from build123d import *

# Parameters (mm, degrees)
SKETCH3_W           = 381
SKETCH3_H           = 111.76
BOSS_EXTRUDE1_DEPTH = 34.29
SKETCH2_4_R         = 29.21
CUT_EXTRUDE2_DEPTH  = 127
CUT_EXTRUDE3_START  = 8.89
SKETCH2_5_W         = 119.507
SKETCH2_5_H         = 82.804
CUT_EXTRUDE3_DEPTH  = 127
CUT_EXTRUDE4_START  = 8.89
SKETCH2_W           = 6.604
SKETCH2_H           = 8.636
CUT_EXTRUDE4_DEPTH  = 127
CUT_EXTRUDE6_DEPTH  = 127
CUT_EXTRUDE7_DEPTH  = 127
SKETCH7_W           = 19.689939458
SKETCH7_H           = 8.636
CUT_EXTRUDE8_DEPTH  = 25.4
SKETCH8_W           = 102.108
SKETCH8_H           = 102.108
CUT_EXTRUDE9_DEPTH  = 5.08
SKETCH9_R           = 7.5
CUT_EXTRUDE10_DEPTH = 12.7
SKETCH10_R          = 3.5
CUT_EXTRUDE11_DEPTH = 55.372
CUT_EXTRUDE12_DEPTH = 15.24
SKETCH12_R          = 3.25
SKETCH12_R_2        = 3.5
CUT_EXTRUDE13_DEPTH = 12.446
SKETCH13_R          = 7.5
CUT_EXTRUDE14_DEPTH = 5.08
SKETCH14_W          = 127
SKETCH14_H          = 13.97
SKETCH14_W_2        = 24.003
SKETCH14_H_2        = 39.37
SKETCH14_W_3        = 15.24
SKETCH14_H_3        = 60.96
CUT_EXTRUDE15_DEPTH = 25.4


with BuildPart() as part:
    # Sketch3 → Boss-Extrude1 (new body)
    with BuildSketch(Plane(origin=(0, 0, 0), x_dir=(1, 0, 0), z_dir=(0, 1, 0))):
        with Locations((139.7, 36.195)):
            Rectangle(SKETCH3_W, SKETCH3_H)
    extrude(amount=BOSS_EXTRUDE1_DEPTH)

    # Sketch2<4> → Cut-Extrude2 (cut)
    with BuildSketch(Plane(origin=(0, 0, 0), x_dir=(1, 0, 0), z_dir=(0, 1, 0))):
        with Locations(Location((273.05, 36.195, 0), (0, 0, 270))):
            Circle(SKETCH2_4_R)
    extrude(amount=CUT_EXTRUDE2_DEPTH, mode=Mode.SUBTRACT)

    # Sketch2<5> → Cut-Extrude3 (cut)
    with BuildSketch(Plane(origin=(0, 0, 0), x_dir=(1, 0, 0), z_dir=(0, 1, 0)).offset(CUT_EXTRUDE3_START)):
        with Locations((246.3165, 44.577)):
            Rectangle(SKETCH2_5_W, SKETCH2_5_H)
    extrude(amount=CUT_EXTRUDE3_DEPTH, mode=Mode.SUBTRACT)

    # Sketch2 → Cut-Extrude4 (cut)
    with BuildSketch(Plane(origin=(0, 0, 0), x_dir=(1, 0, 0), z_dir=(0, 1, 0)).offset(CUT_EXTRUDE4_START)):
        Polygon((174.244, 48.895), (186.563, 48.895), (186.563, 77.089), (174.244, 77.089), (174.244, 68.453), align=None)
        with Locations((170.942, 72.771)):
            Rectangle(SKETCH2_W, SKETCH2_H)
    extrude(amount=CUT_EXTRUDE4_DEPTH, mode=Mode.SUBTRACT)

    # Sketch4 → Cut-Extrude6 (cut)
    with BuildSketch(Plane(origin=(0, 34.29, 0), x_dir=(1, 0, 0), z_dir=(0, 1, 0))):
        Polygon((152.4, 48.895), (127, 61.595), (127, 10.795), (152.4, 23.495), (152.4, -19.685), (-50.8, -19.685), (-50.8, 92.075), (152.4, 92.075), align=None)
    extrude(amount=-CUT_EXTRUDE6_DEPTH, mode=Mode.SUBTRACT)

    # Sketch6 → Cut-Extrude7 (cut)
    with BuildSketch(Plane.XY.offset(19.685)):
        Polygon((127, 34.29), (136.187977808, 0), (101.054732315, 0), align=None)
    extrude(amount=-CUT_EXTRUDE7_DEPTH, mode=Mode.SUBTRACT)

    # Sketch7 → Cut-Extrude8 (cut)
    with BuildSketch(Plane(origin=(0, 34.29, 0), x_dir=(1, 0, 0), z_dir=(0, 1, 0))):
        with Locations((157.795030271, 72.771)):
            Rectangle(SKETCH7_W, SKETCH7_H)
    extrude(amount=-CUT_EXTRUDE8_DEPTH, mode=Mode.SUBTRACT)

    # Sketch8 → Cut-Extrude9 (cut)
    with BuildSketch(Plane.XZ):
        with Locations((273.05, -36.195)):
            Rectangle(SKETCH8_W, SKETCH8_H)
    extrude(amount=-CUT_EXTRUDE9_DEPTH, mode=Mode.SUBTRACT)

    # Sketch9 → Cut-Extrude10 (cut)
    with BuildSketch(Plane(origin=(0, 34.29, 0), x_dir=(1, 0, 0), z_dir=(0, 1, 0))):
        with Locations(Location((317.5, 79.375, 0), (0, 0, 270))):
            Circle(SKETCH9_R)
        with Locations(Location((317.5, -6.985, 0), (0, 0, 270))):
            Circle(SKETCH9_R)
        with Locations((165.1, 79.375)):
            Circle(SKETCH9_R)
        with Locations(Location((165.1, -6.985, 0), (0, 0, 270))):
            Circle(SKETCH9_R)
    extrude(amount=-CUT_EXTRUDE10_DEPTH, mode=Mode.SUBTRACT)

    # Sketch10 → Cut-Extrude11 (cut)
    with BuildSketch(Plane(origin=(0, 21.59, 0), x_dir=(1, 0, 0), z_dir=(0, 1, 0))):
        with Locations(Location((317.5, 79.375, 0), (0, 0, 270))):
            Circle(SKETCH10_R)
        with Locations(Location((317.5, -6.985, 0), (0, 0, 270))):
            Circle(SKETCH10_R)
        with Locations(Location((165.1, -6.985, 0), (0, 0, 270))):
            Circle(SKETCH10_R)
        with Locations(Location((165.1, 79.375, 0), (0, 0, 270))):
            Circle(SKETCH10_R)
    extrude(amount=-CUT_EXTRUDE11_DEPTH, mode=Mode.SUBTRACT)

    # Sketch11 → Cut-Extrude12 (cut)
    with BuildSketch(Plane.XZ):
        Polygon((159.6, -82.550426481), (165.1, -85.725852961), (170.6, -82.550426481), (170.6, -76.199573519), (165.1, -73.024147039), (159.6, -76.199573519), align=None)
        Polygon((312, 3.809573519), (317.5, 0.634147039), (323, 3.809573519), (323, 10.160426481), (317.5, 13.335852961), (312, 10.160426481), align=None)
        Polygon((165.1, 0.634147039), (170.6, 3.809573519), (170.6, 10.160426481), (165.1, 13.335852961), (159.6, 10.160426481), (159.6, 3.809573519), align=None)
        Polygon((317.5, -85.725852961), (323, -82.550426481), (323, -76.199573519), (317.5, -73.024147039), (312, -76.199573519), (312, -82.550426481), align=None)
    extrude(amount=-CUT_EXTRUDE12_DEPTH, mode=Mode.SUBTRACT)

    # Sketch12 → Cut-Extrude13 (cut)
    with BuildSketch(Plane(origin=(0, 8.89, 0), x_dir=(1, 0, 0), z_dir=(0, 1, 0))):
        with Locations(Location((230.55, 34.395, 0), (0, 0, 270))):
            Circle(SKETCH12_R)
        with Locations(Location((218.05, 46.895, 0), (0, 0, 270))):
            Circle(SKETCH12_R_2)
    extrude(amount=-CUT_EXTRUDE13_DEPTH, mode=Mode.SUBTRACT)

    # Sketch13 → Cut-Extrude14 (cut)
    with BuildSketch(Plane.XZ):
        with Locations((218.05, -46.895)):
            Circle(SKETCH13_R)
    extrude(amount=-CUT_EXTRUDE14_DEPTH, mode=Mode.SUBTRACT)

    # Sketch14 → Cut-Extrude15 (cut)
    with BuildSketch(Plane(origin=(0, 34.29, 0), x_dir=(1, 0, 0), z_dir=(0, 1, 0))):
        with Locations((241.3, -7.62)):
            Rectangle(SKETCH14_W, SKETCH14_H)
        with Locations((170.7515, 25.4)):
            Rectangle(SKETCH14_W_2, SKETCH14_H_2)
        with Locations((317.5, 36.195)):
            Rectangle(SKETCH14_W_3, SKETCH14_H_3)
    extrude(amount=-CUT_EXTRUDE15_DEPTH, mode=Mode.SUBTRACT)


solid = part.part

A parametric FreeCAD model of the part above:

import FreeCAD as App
import Part
import Sketcher
from FreeCAD import Vector
Q = App.Units.Quantity

doc = App.newDocument("Part")
body = doc.addObject("PartDesign::Body", "Body")

# Sketch on XZ plane
sketch1 = body.newObject("Sketcher::SketchObject", "Sketch")
sketch1.AttachmentSupport = (doc.getObject("XZ_Plane"), [""])
sketch1.MapMode = "FlatFace"
sketch1.addGeometry([
    Part.LineSegment(Vector(-51, -92, 0), Vector(-51, 20, 0)),
    Part.LineSegment(Vector(-51, 20, 0), Vector(330, 20, 0)),
    Part.LineSegment(Vector(330, 20, 0), Vector(330, -92, 0)),
    Part.LineSegment(Vector(330, -92, 0), Vector(-51, -92, 0)),
], False)
sketch1.addConstraint([
    Sketcher.Constraint("Coincident", 0, 2, 1, 1),
    Sketcher.Constraint("Coincident", 1, 2, 2, 1),
    Sketcher.Constraint("Coincident", 2, 2, 3, 1),
    Sketcher.Constraint("Coincident", 3, 2, 0, 1),
    Sketcher.Constraint("Vertical", 0),
    Sketcher.Constraint("Horizontal", 1),
    Sketcher.Constraint("Vertical", 2),
    Sketcher.Constraint("Horizontal", 3),
    Sketcher.Constraint("DistanceX", 1, 1, 1, 2, Q("15 in")),
    Sketcher.Constraint("DistanceY", 0, 1, 0, 2, Q("4.4 in")),
    Sketcher.Constraint("DistanceX", 0, 2, -1, 1, Q("2 in")),
    Sketcher.Constraint("DistanceY", -1, 1, 0, 2, Q("0.775 in")),
])
pad1 = body.newObject("PartDesign::Pad", "Pad")
pad1.Profile = sketch1
pad1.Length = Q("1.35 in")
pad1.Reversed = True

# Sketch on XZ plane
sketch2 = body.newObject("Sketcher::SketchObject", "Sketch001")
sketch2.AttachmentSupport = (doc.getObject("XZ_Plane"), [""])
sketch2.MapMode = "FlatFace"
sketch2.addGeometry(Part.Circle(Vector(273, -36, 0), Vector(0, 0, 1), 29), False)
sketch2.addConstraint([
    Sketcher.Constraint("Diameter", 0, Q("2.3 in")),
    Sketcher.Constraint("DistanceX", -1, 1, 0, 3, Q("10.75 in")),
    Sketcher.Constraint("DistanceY", 0, 3, -1, 1, Q("1.425 in")),
])
pocket1 = body.newObject("PartDesign::Pocket", "Pocket")
pocket1.Profile = sketch2
pocket1.Length = Q("5 in")

# Sketch on XZ plane
sketch3 = body.newObject("Sketcher::SketchObject", "Sketch002")
sketch3.AttachmentSupport = (doc.getObject("XZ_Plane"), [""])
sketch3.MapMode = "FlatFace"
sketch3.AttachmentOffset = App.Placement(Vector(0, 0, -0.35 * 25.4), App.Rotation())
sketch3.addGeometry([
    Part.LineSegment(Vector(187, -86, 0), Vector(187, -3, 0)),
    Part.LineSegment(Vector(187, -3, 0), Vector(306, -3, 0)),
    Part.LineSegment(Vector(306, -3, 0), Vector(306, -86, 0)),
    Part.LineSegment(Vector(306, -86, 0), Vector(187, -86, 0)),
], False)
sketch3.addConstraint([
    Sketcher.Constraint("Coincident", 0, 2, 1, 1),
    Sketcher.Constraint("Coincident", 1, 2, 2, 1),
    Sketcher.Constraint("Coincident", 2, 2, 3, 1),
    Sketcher.Constraint("Coincident", 3, 2, 0, 1),
    Sketcher.Constraint("Vertical", 0),
    Sketcher.Constraint("Horizontal", 1),
    Sketcher.Constraint("Vertical", 2),
    Sketcher.Constraint("Horizontal", 3),
    Sketcher.Constraint("DistanceY", 0, 1, 0, 2, Q("3.26 in")),
    Sketcher.Constraint("DistanceX", 1, 1, 1, 2, Q("4.705 in")),
    Sketcher.Constraint("DistanceX", -1, 1, 1, 2, Q("12.05 in")),
    Sketcher.Constraint("DistanceY", 0, 2, -1, 1, Q("0.125 in")),
])
pocket2 = body.newObject("PartDesign::Pocket", "Pocket001")
pocket2.Profile = sketch3
pocket2.Length = Q("5 in")

# Sketch on XZ plane
sketch4 = body.newObject("Sketcher::SketchObject", "Sketch003")
sketch4.AttachmentSupport = (doc.getObject("XZ_Plane"), [""])
sketch4.MapMode = "FlatFace"
sketch4.AttachmentOffset = App.Placement(Vector(0, 0, -0.35 * 25.4), App.Rotation())
sketch4.addGeometry([
    Part.LineSegment(Vector(174, -49, 0), Vector(187, -49, 0)),  # 0
    Part.LineSegment(Vector(187, -49, 0), Vector(187, -77, 0)),  # 1
    Part.LineSegment(Vector(187, -77, 0), Vector(168, -77, 0)),  # 2
    Part.LineSegment(Vector(168, -77, 0), Vector(168, -68, 0)),  # 3
    Part.LineSegment(Vector(168, -68, 0), Vector(174, -68, 0)),  # 4
    Part.LineSegment(Vector(174, -68, 0), Vector(174, -49, 0)),  # 5
], False)
sketch4.addConstraint([
    Sketcher.Constraint("Coincident", 0, 2, 1, 1),
    Sketcher.Constraint("Coincident", 1, 2, 2, 1),
    Sketcher.Constraint("Coincident", 2, 2, 3, 1),
    Sketcher.Constraint("Coincident", 3, 2, 4, 1),
    Sketcher.Constraint("Coincident", 4, 2, 5, 1),
    Sketcher.Constraint("Coincident", 5, 2, 0, 1),
    Sketcher.Constraint("Horizontal", 0),
    Sketcher.Constraint("Vertical", 1),
    Sketcher.Constraint("Horizontal", 2),
    Sketcher.Constraint("Vertical", 3),
    Sketcher.Constraint("Horizontal", 4),
    Sketcher.Constraint("Vertical", 5),
    Sketcher.Constraint("DistanceX", 4, 1, 4, 2, Q("0.26 in")),
    Sketcher.Constraint("DistanceY", 1, 2, 1, 1, Q("1.11 in")),
    Sketcher.Constraint("DistanceY", 3, 1, 3, 2, Q("0.34 in")),
    Sketcher.Constraint("DistanceX", -1, 1, 2, 2, Q("6.6 in")),
    Sketcher.Constraint("DistanceX", 0, 1, 0, 2, Q("0.485 in")),
    Sketcher.Constraint("DistanceY", 0, 2, -1, 1, Q("1.925 in")),
])
pocket3 = body.newObject("PartDesign::Pocket", "Pocket002")
pocket3.Profile = sketch4
pocket3.Length = Q("5 in")

# Sketch on XZ plane
sketch5 = body.newObject("Sketcher::SketchObject", "Sketch004")
sketch5.AttachmentSupport = (doc.getObject("XZ_Plane"), [""])
sketch5.MapMode = "FlatFace"
sketch5.AttachmentOffset = App.Placement(Vector(0, 0, -1.35 * 25.4), App.Rotation())
sketch5.addGeometry([
    Part.LineSegment(Vector(127, -62, 0), Vector(152, -49, 0)),  # 0
    Part.LineSegment(Vector(152, -49, 0), Vector(152, -92, 0)),  # 1
    Part.LineSegment(Vector(152, -92, 0), Vector(-51, -92, 0)),  # 2
    Part.LineSegment(Vector(-51, -92, 0), Vector(-51, 20, 0)),  # 3
    Part.LineSegment(Vector(-51, 20, 0), Vector(152, 20, 0)),  # 4
    Part.LineSegment(Vector(152, 20, 0), Vector(152, -23, 0)),  # 5
    Part.LineSegment(Vector(152, -23, 0), Vector(127, -11, 0)),  # 6
    Part.LineSegment(Vector(127, -11, 0), Vector(127, -62, 0)),  # 7
], False)
sketch5.addConstraint([
    Sketcher.Constraint("Coincident", 0, 2, 1, 1),
    Sketcher.Constraint("Coincident", 1, 2, 2, 1),
    Sketcher.Constraint("Coincident", 2, 2, 3, 1),
    Sketcher.Constraint("Coincident", 3, 2, 4, 1),
    Sketcher.Constraint("Coincident", 4, 2, 5, 1),
    Sketcher.Constraint("Coincident", 5, 2, 6, 1),
    Sketcher.Constraint("Coincident", 6, 2, 7, 1),
    Sketcher.Constraint("Coincident", 7, 2, 0, 1),
    Sketcher.Constraint("Vertical", 1),
    Sketcher.Constraint("Horizontal", 2),
    Sketcher.Constraint("Vertical", 3),
    Sketcher.Constraint("Horizontal", 4),
    Sketcher.Constraint("Vertical", 5),
    Sketcher.Constraint("Vertical", 7),
    Sketcher.Constraint("Vertical", 1, 2, 4, 2),
    Sketcher.Constraint("Equal", 1, 5),
    Sketcher.Constraint("Equal", 0, 6),
    Sketcher.Constraint("DistanceX", 2, 2, 2, 1, Q("8 in")),
    Sketcher.Constraint("DistanceY", 7, 2, 7, 1, Q("2 in")),
    Sketcher.Constraint("DistanceY", 1, 2, 1, 1, Q("1.7 in")),
    Sketcher.Constraint("DistanceY", 3, 1, 3, 2, Q("4.4 in")),
    Sketcher.Constraint("DistanceX", -1, 1, 0, 2, Q("6 in")),
    Sketcher.Constraint("DistanceX", -1, 1, 6, 2, Q("5 in")),
    Sketcher.Constraint("DistanceY", 0, 2, -1, 1, Q("1.925 in")),
])
pocket4 = body.newObject("PartDesign::Pocket", "Pocket003")
pocket4.Profile = sketch5
pocket4.Length = Q("5 in")
pocket4.Reversed = True

# Sketch on XY plane
sketch6 = body.newObject("Sketcher::SketchObject", "Sketch005")
sketch6.AttachmentSupport = (doc.getObject("XY_Plane"), [""])
sketch6.MapMode = "FlatFace"
sketch6.AttachmentOffset = App.Placement(Vector(0, 0, 0.775 * 25.4), App.Rotation())
sketch6.addGeometry([
    Part.LineSegment(Vector(136, 0, 0), Vector(127, 34, 0)),
    Part.LineSegment(Vector(127, 34, 0), Vector(101, 0, 0)),
    Part.LineSegment(Vector(101, 0, 0), Vector(136, 0, 0)),
], False)
sketch6.addConstraint([
    Sketcher.Constraint("Coincident", 0, 2, 1, 1),
    Sketcher.Constraint("Coincident", 1, 2, 2, 1),
    Sketcher.Constraint("Coincident", 2, 2, 0, 1),
    Sketcher.Constraint("Horizontal", 2),
    Sketcher.Constraint("PointOnObject", 1, 2, -1),
    Sketcher.Constraint("DistanceX", -1, 1, 0, 2, Q("5 in")),
    Sketcher.Constraint("Angle", 0, Q("105 deg")),
    Sketcher.Constraint("DistanceY", -1, 1, 0, 2, Q("1.35 in")),
    Sketcher.Constraint("DistanceX", 2, 1, 2, 2, 35.133245),
])
pocket5 = body.newObject("PartDesign::Pocket", "Pocket004")
pocket5.Profile = sketch6
pocket5.Length = Q("5 in")

# Sketch on XZ plane
sketch7 = body.newObject("Sketcher::SketchObject", "Sketch006")
sketch7.AttachmentSupport = (doc.getObject("XZ_Plane"), [""])
sketch7.MapMode = "FlatFace"
sketch7.AttachmentOffset = App.Placement(Vector(0, 0, -1.35 * 25.4), App.Rotation())
sketch7.addGeometry([
    Part.LineSegment(Vector(148, -77, 0), Vector(148, -68, 0)),
    Part.LineSegment(Vector(148, -68, 0), Vector(168, -68, 0)),
    Part.LineSegment(Vector(168, -68, 0), Vector(168, -77, 0)),
    Part.LineSegment(Vector(168, -77, 0), Vector(148, -77, 0)),
], False)
sketch7.addConstraint([
    Sketcher.Constraint("Coincident", 0, 2, 1, 1),
    Sketcher.Constraint("Coincident", 1, 2, 2, 1),
    Sketcher.Constraint("Coincident", 2, 2, 3, 1),
    Sketcher.Constraint("Coincident", 3, 2, 0, 1),
    Sketcher.Constraint("Vertical", 0),
    Sketcher.Constraint("Horizontal", 1),
    Sketcher.Constraint("Vertical", 2),
    Sketcher.Constraint("Horizontal", 3),
    Sketcher.Constraint("DistanceY", 0, 1, 0, 2, Q("0.34 in")),
    Sketcher.Constraint("DistanceX", -1, 1, 1, 2, Q("6.6 in")),
    Sketcher.Constraint("DistanceY", 0, 2, -1, 1, Q("2.695 in")),
    Sketcher.Constraint("DistanceX", 1, 1, 1, 2, 19.689939),
])
pocket6 = body.newObject("PartDesign::Pocket", "Pocket005")
pocket6.Profile = sketch7
pocket6.Length = Q("1 in")
pocket6.Reversed = True

# Sketch on XZ plane
sketch8 = body.newObject("Sketcher::SketchObject", "Sketch007")
sketch8.AttachmentSupport = (doc.getObject("XZ_Plane"), [""])
sketch8.MapMode = "FlatFace"
sketch8.addGeometry([
    Part.LineSegment(Vector(222, 15, 0), Vector(222, -87, 0)),
    Part.LineSegment(Vector(222, -87, 0), Vector(324, -87, 0)),
    Part.LineSegment(Vector(324, -87, 0), Vector(324, 15, 0)),
    Part.LineSegment(Vector(324, 15, 0), Vector(222, 15, 0)),
], False)
sketch8.addConstraint([
    Sketcher.Constraint("Coincident", 0, 2, 1, 1),
    Sketcher.Constraint("Coincident", 1, 2, 2, 1),
    Sketcher.Constraint("Coincident", 2, 2, 3, 1),
    Sketcher.Constraint("Coincident", 3, 2, 0, 1),
    Sketcher.Constraint("Vertical", 0),
    Sketcher.Constraint("Horizontal", 1),
    Sketcher.Constraint("Vertical", 2),
    Sketcher.Constraint("Horizontal", 3),
    Sketcher.Constraint("Equal", 3, 0),
    Sketcher.Constraint("DistanceX", 1, 1, 1, 2, Q("4.02 in")),
    Sketcher.Constraint("DistanceX", -1, 1, 0, 2, Q("8.74 in")),
    Sketcher.Constraint("DistanceY", 0, 2, -1, 1, Q("3.435 in")),
])
pocket7 = body.newObject("PartDesign::Pocket", "Pocket006")
pocket7.Profile = sketch8
pocket7.Length = Q("0.2 in")

# Sketch on XZ plane
sketch9 = body.newObject("Sketcher::SketchObject", "Sketch008")
sketch9.AttachmentSupport = (doc.getObject("XZ_Plane"), [""])
sketch9.MapMode = "FlatFace"
sketch9.AttachmentOffset = App.Placement(Vector(0, 0, -1.35 * 25.4), App.Rotation())
sketch9.addGeometry([
    Part.Circle(Vector(318, -79, 0), Vector(0, 0, 1), 8),
    Part.Circle(Vector(318, 7, 0), Vector(0, 0, 1), 8),
    Part.Circle(Vector(165, -79, 0), Vector(0, 0, 1), 8),
    Part.Circle(Vector(165, 7, 0), Vector(0, 0, 1), 8),
], False)
sketch9.addConstraint([
    Sketcher.Constraint("Equal", 0, 1),
    Sketcher.Constraint("Equal", 1, 2),
    Sketcher.Constraint("Equal", 2, 3),
    Sketcher.Constraint("Horizontal", 0, 3, 2, 3),
    Sketcher.Constraint("Horizontal", 1, 3, 3, 3),
    Sketcher.Constraint("Vertical", 0, 3, 1, 3),
    Sketcher.Constraint("Vertical", 2, 3, 3, 3),
    Sketcher.Constraint("DistanceX", 2, 3, 0, 3, Q("6 in")),
    Sketcher.Constraint("DistanceX", -1, 1, 0, 3, Q("12.5 in")),
    Sketcher.Constraint("DistanceY", 0, 3, 1, 3, Q("3.4 in")),
    Sketcher.Constraint("Diameter", 0, 15.0),
    Sketcher.Constraint("DistanceY", 0, 3, -1, 1, Q("3.125 in")),
])
pocket8 = body.newObject("PartDesign::Pocket", "Pocket007")
pocket8.Profile = sketch9
pocket8.Length = Q("0.5 in")
pocket8.Reversed = True

# Sketch on XZ plane
sketch10 = body.newObject("Sketcher::SketchObject", "Sketch009")
sketch10.AttachmentSupport = (doc.getObject("XZ_Plane"), [""])
sketch10.MapMode = "FlatFace"
sketch10.AttachmentOffset = App.Placement(Vector(0, 0, -0.85 * 25.4), App.Rotation())
sketch10.addGeometry([
    Part.Circle(Vector(317.5, -79.4, 0), Vector(0, 0, 1), 3.5),
    Part.Circle(Vector(317.5, 7, 0), Vector(0, 0, 1), 3.5),
    Part.Circle(Vector(165.1, 7, 0), Vector(0, 0, 1), 3.5),
    Part.Circle(Vector(165.1, -79.4, 0), Vector(0, 0, 1), 3.5),
], False)
sketch10.addConstraint([
    Sketcher.Constraint("Equal", 0, 1),
    Sketcher.Constraint("Equal", 1, 2),
    Sketcher.Constraint("Equal", 2, 3),
    Sketcher.Constraint("Horizontal", 1, 3, 2, 3),
    Sketcher.Constraint("Horizontal", 0, 3, 3, 3),
    Sketcher.Constraint("Vertical", 0, 3, 1, 3),
    Sketcher.Constraint("Vertical", 2, 3, 3, 3),
    Sketcher.Constraint("DistanceX", 2, 3, 1, 3, Q("6 in")),
    Sketcher.Constraint("DistanceX", -1, 1, 0, 3, Q("12.5 in")),
    Sketcher.Constraint("DistanceY", 0, 3, 1, 3, Q("3.4 in")),
    Sketcher.Constraint("Diameter", 0, 7.0),
    Sketcher.Constraint("DistanceY", 0, 3, -1, 1, Q("3.125 in")),
])
pocket9 = body.newObject("PartDesign::Pocket", "Pocket008")
pocket9.Profile = sketch10
pocket9.Length = Q("2.18 in")
pocket9.Reversed = True

# Sketch on XZ plane
sketch11 = body.newObject("Sketcher::SketchObject", "Sketch010")
sketch11.AttachmentSupport = (doc.getObject("XZ_Plane"), [""])
sketch11.MapMode = "FlatFace"
sketch11.addGeometry([
    Part.LineSegment(Vector(160, -83, 0), Vector(165, -86, 0)),  # 0
    Part.LineSegment(Vector(165, -86, 0), Vector(171, -83, 0)),  # 1
    Part.LineSegment(Vector(171, -83, 0), Vector(171, -76, 0)),  # 2
    Part.LineSegment(Vector(171, -76, 0), Vector(165, -73, 0)),  # 3
    Part.LineSegment(Vector(165, -73, 0), Vector(160, -76, 0)),  # 4
    Part.LineSegment(Vector(160, -76, 0), Vector(160, -83, 0)),  # 5
    Part.LineSegment(Vector(312, 4, 0), Vector(318, 1, 0)),  # 6
    Part.LineSegment(Vector(318, 1, 0), Vector(323, 4, 0)),  # 7
    Part.LineSegment(Vector(323, 4, 0), Vector(323, 10, 0)),  # 8
    Part.LineSegment(Vector(323, 10, 0), Vector(318, 13, 0)),  # 9
    Part.LineSegment(Vector(318, 13, 0), Vector(312, 10, 0)),  # 10
    Part.LineSegment(Vector(312, 10, 0), Vector(312, 4, 0)),  # 11
    Part.LineSegment(Vector(165, 1, 0), Vector(171, 4, 0)),  # 12
    Part.LineSegment(Vector(171, 4, 0), Vector(171, 10, 0)),  # 13
    Part.LineSegment(Vector(171, 10, 0), Vector(165, 13, 0)),  # 14
    Part.LineSegment(Vector(165, 13, 0), Vector(160, 10, 0)),  # 15
    Part.LineSegment(Vector(160, 10, 0), Vector(160, 4, 0)),  # 16
    Part.LineSegment(Vector(160, 4, 0), Vector(165, 1, 0)),  # 17
    Part.LineSegment(Vector(318, -86, 0), Vector(323, -83, 0)),  # 18
    Part.LineSegment(Vector(323, -83, 0), Vector(323, -76, 0)),  # 19
    Part.LineSegment(Vector(323, -76, 0), Vector(318, -73, 0)),  # 20
    Part.LineSegment(Vector(318, -73, 0), Vector(312, -76, 0)),  # 21
    Part.LineSegment(Vector(312, -76, 0), Vector(312, -83, 0)),  # 22
    Part.LineSegment(Vector(312, -83, 0), Vector(318, -86, 0)),  # 23
], False)
sketch11.addConstraint([
    Sketcher.Constraint("Coincident", 0, 2, 1, 1),
    Sketcher.Constraint("Coincident", 1, 2, 2, 1),
    Sketcher.Constraint("Coincident", 2, 2, 3, 1),
    Sketcher.Constraint("Coincident", 3, 2, 4, 1),
    Sketcher.Constraint("Coincident", 4, 2, 5, 1),
    Sketcher.Constraint("Coincident", 5, 2, 0, 1),
    Sketcher.Constraint("Coincident", 6, 2, 7, 1),
    Sketcher.Constraint("Coincident", 7, 2, 8, 1),
    Sketcher.Constraint("Coincident", 8, 2, 9, 1),
    Sketcher.Constraint("Coincident", 9, 2, 10, 1),
    Sketcher.Constraint("Coincident", 10, 2, 11, 1),
    Sketcher.Constraint("Coincident", 11, 2, 6, 1),
    Sketcher.Constraint("Coincident", 12, 2, 13, 1),
    Sketcher.Constraint("Coincident", 13, 2, 14, 1),
    Sketcher.Constraint("Coincident", 14, 2, 15, 1),
    Sketcher.Constraint("Coincident", 15, 2, 16, 1),
    Sketcher.Constraint("Coincident", 16, 2, 17, 1),
    Sketcher.Constraint("Coincident", 17, 2, 12, 1),
    Sketcher.Constraint("Coincident", 18, 2, 19, 1),
    Sketcher.Constraint("Coincident", 19, 2, 20, 1),
    Sketcher.Constraint("Coincident", 20, 2, 21, 1),
    Sketcher.Constraint("Coincident", 21, 2, 22, 1),
    Sketcher.Constraint("Coincident", 22, 2, 23, 1),
    Sketcher.Constraint("Coincident", 23, 2, 18, 1),
    Sketcher.Constraint("Vertical", 2),
    Sketcher.Constraint("Vertical", 5),
    Sketcher.Constraint("Vertical", 8),
    Sketcher.Constraint("Vertical", 11),
    Sketcher.Constraint("Vertical", 13),
    Sketcher.Constraint("Vertical", 16),
    Sketcher.Constraint("Vertical", 19),
    Sketcher.Constraint("Vertical", 22),
    Sketcher.Constraint("Parallel", 0, 3),
    Sketcher.Constraint("Parallel", 1, 4),
    Sketcher.Constraint("Parallel", 3, 6),
    Sketcher.Constraint("Parallel", 4, 7),
    Sketcher.Constraint("Parallel", 6, 9),
    Sketcher.Constraint("Parallel", 7, 10),
    Sketcher.Constraint("Parallel", 10, 12),
    Sketcher.Constraint("Parallel", 9, 14),
    Sketcher.Constraint("Parallel", 12, 15),
    Sketcher.Constraint("Parallel", 14, 17),
    Sketcher.Constraint("Parallel", 15, 18),
    Sketcher.Constraint("Parallel", 17, 20),
    Sketcher.Constraint("Parallel", 18, 21),
    Sketcher.Constraint("Parallel", 20, 23),
    Sketcher.Constraint("Horizontal", 2, 2, 4, 2),
    Sketcher.Constraint("Horizontal", 1, 2, 5, 2),
    Sketcher.Constraint("Horizontal", 8, 2, 10, 2),
    Sketcher.Constraint("Horizontal", 7, 2, 11, 2),
    Sketcher.Constraint("Horizontal", 11, 2, 12, 2),
    Sketcher.Constraint("Horizontal", 10, 2, 13, 2),
    Sketcher.Constraint("Horizontal", 9, 2, 14, 2),
    Sketcher.Constraint("Horizontal", 13, 2, 15, 2),
    Sketcher.Constraint("Horizontal", 12, 2, 16, 2),
    Sketcher.Constraint("Horizontal", 5, 2, 18, 2),
    Sketcher.Constraint("Horizontal", 4, 2, 19, 2),
    Sketcher.Constraint("Horizontal", 3, 2, 20, 2),
    Sketcher.Constraint("Horizontal", 19, 2, 21, 2),
    Sketcher.Constraint("Horizontal", 18, 2, 22, 2),
    Sketcher.Constraint("Vertical", 0, 2, 3, 2),
    Sketcher.Constraint("Vertical", 2, 2, 12, 2),
    Sketcher.Constraint("Vertical", 3, 2, 14, 2),
    Sketcher.Constraint("Vertical", 8, 2, 18, 2),
    Sketcher.Constraint("Equal", 5, 8),
    Sketcher.Constraint("Angle", 0, Q("-30 deg")),
    Sketcher.Constraint("DistanceX", 3, 2, 6, 2, Q("6 in")),
    Sketcher.Constraint("DistanceX", -1, 1, 0, 2, Q("6.5 in")),
    Sketcher.Constraint("DistanceY", 0, 2, 6, 2, Q("3.4 in")),
    Sketcher.Constraint("DistanceX", -1, 1, 1, 2, 170.6),
    Sketcher.Constraint("DistanceY", 2, 1, 2, 2, 6.350853),
    Sketcher.Constraint("DistanceY", 0, 2, -1, 1, 85.725853),
])
pocket10 = body.newObject("PartDesign::Pocket", "Pocket009")
pocket10.Profile = sketch11
pocket10.Length = Q("0.6 in")

# Sketch on XZ plane
sketch12 = body.newObject("Sketcher::SketchObject", "Sketch011")
sketch12.AttachmentSupport = (doc.getObject("XZ_Plane"), [""])
sketch12.MapMode = "FlatFace"
sketch12.AttachmentOffset = App.Placement(Vector(0, 0, -0.35 * 25.4), App.Rotation())
sketch12.addGeometry([
    Part.Circle(Vector(230.6, -34.4, 0), Vector(0, 0, 1), 3.2),
    Part.Circle(Vector(218.1, -46.9, 0), Vector(0, 0, 1), 3.5),
], False)
sketch12.addConstraint([
    Sketcher.Constraint("Diameter", 0, 6.5),
    Sketcher.Constraint("Diameter", 1, 7.0),
    Sketcher.Constraint("DistanceX", -1, 1, 0, 3, 230.55),
    Sketcher.Constraint("DistanceY", 0, 3, -1, 1, 34.395),
    Sketcher.Constraint("DistanceX", -1, 1, 1, 3, 218.05),
    Sketcher.Constraint("DistanceY", 1, 3, -1, 1, 46.895),
])
pocket11 = body.newObject("PartDesign::Pocket", "Pocket010")
pocket11.Profile = sketch12
pocket11.Length = Q("0.49 in")
pocket11.Reversed = True

# Sketch on XZ plane
sketch13 = body.newObject("Sketcher::SketchObject", "Sketch012")
sketch13.AttachmentSupport = (doc.getObject("XZ_Plane"), [""])
sketch13.MapMode = "FlatFace"
sketch13.addGeometry(Part.Circle(Vector(218, -47, 0), Vector(0, 0, 1), 8), False)
sketch13.addConstraint([
    Sketcher.Constraint("Diameter", 0, 15.0),
    Sketcher.Constraint("DistanceX", -1, 1, 0, 3, 218.05),
    Sketcher.Constraint("DistanceY", 0, 3, -1, 1, 46.895),
])
pocket12 = body.newObject("PartDesign::Pocket", "Pocket011")
pocket12.Profile = sketch13
pocket12.Length = Q("0.2 in")

# Sketch on XZ plane
sketch14 = body.newObject("Sketcher::SketchObject", "Sketch013")
sketch14.AttachmentSupport = (doc.getObject("XZ_Plane"), [""])
sketch14.MapMode = "FlatFace"
sketch14.AttachmentOffset = App.Placement(Vector(0, 0, -1.35 * 25.4), App.Rotation())
sketch14.addGeometry([
    Part.LineSegment(Vector(178, 1, 0), Vector(178, 15, 0)),  # 0
    Part.LineSegment(Vector(178, 15, 0), Vector(305, 15, 0)),  # 1
    Part.LineSegment(Vector(305, 15, 0), Vector(305, 1, 0)),  # 2
    Part.LineSegment(Vector(305, 1, 0), Vector(178, 1, 0)),  # 3
    Part.LineSegment(Vector(159, -45, 0), Vector(159, -6, 0)),  # 4
    Part.LineSegment(Vector(159, -6, 0), Vector(183, -6, 0)),  # 5
    Part.LineSegment(Vector(183, -6, 0), Vector(183, -45, 0)),  # 6
    Part.LineSegment(Vector(183, -45, 0), Vector(159, -45, 0)),  # 7
    Part.LineSegment(Vector(310, -67, 0), Vector(310, -6, 0)),  # 8
    Part.LineSegment(Vector(310, -6, 0), Vector(325, -6, 0)),  # 9
    Part.LineSegment(Vector(325, -6, 0), Vector(325, -67, 0)),  # 10
    Part.LineSegment(Vector(325, -67, 0), Vector(310, -67, 0)),  # 11
], False)
sketch14.addConstraint([
    Sketcher.Constraint("Coincident", 0, 2, 1, 1),
    Sketcher.Constraint("Coincident", 1, 2, 2, 1),
    Sketcher.Constraint("Coincident", 2, 2, 3, 1),
    Sketcher.Constraint("Coincident", 3, 2, 0, 1),
    Sketcher.Constraint("Coincident", 4, 2, 5, 1),
    Sketcher.Constraint("Coincident", 5, 2, 6, 1),
    Sketcher.Constraint("Coincident", 6, 2, 7, 1),
    Sketcher.Constraint("Coincident", 7, 2, 4, 1),
    Sketcher.Constraint("Coincident", 8, 2, 9, 1),
    Sketcher.Constraint("Coincident", 9, 2, 10, 1),
    Sketcher.Constraint("Coincident", 10, 2, 11, 1),
    Sketcher.Constraint("Coincident", 11, 2, 8, 1),
    Sketcher.Constraint("Vertical", 0),
    Sketcher.Constraint("Horizontal", 1),
    Sketcher.Constraint("Vertical", 2),
    Sketcher.Constraint("Horizontal", 3),
    Sketcher.Constraint("Vertical", 4),
    Sketcher.Constraint("Horizontal", 5),
    Sketcher.Constraint("Vertical", 6),
    Sketcher.Constraint("Horizontal", 7),
    Sketcher.Constraint("Vertical", 8),
    Sketcher.Constraint("Horizontal", 9),
    Sketcher.Constraint("Vertical", 10),
    Sketcher.Constraint("Horizontal", 11),
    Sketcher.Constraint("Horizontal", 5, 2, 8, 2),
    Sketcher.Constraint("DistanceX", 1, 1, 1, 2, Q("5 in")),
    Sketcher.Constraint("DistanceX", 9, 1, 9, 2, Q("0.6 in")),
    Sketcher.Constraint("DistanceY", 8, 1, 8, 2, Q("2.4 in")),
    Sketcher.Constraint("DistanceX", -1, 1, 0, 2, Q("7 in")),
    Sketcher.Constraint("DistanceY", 0, 1, 0, 2, Q("0.55 in")),
    Sketcher.Constraint("DistanceY", 4, 1, 4, 2, Q("1.55 in")),
    Sketcher.Constraint("DistanceX", -1, 1, 8, 2, Q("12.2 in")),
    Sketcher.Constraint("DistanceY", 4, 2, 0, 2, Q("0.8 in")),
    Sketcher.Constraint("DistanceX", 5, 1, 5, 2, Q("0.945 in")),
    Sketcher.Constraint("DistanceX", -1, 1, 4, 2, Q("6.25 in")),
    Sketcher.Constraint("DistanceY", -1, 1, 0, 2, Q("0.575 in")),
])
pocket13 = body.newObject("PartDesign::Pocket", "Pocket012")
pocket13.Profile = sketch14
pocket13.Length = Q("1 in")
pocket13.Reversed = True

doc.recompute()
